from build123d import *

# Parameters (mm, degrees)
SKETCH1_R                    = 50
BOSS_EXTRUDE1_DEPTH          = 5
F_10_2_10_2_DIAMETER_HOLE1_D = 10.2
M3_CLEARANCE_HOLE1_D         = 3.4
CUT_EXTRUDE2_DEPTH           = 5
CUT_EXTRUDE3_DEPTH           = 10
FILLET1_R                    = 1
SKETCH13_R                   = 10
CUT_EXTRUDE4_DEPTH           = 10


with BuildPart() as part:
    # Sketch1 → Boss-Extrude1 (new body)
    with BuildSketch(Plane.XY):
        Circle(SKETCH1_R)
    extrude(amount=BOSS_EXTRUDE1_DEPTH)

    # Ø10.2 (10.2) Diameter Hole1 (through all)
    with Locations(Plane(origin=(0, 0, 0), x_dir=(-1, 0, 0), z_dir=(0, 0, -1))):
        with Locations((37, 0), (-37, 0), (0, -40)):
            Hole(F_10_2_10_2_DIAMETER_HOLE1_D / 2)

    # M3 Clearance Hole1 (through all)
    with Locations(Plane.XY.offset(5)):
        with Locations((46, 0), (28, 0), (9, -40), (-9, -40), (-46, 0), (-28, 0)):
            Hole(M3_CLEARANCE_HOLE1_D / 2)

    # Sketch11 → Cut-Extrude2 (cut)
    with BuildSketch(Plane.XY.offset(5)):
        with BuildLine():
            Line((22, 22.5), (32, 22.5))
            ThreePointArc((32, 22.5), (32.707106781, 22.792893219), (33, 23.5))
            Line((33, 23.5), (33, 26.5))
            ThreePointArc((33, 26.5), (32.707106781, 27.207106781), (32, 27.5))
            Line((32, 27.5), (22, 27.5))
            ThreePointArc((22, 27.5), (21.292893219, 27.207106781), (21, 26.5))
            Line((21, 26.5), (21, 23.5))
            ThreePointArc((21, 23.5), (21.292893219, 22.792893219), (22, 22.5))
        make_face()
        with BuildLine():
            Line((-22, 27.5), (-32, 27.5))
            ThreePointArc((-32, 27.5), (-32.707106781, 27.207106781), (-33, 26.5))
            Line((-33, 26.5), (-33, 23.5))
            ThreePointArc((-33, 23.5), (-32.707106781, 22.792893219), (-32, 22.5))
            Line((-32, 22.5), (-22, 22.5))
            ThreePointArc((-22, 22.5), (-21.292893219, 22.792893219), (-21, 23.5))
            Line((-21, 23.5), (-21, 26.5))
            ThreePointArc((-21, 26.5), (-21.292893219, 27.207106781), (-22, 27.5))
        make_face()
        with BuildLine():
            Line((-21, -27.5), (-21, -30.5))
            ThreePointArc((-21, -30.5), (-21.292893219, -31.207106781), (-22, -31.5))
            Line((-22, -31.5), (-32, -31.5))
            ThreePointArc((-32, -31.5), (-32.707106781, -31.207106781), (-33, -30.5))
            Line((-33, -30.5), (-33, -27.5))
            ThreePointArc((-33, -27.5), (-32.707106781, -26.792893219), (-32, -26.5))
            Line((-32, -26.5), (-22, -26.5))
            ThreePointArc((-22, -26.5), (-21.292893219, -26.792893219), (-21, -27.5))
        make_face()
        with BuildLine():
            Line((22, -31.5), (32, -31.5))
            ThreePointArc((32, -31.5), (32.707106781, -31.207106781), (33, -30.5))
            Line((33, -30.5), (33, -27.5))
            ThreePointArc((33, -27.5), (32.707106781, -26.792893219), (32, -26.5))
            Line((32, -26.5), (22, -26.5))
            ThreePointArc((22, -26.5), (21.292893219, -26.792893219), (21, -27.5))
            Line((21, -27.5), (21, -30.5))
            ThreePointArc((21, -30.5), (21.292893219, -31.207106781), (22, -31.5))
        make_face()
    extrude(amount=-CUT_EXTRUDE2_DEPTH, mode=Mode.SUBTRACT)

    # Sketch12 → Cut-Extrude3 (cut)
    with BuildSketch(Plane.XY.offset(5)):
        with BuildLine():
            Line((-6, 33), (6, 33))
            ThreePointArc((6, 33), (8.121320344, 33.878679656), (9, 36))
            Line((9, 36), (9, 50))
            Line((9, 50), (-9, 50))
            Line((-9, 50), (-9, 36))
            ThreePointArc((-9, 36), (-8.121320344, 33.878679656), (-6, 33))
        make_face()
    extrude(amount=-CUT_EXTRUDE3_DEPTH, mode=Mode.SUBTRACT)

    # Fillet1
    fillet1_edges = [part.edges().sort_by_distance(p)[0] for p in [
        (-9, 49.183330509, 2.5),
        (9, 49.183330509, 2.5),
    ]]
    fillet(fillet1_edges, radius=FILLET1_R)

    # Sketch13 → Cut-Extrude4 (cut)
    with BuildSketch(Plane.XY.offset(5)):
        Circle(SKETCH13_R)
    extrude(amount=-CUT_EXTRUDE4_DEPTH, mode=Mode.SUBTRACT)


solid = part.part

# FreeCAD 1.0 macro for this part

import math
import FreeCAD as App
import Part
import Sketcher
Q = App.Units.Quantity


def edges_at(feature, points):
    """Names of the edges that pass closest to the given points."""
    edges = feature.Shape.Edges
    near = lambda p: min(range(len(edges)), key=lambda i: edges[i].distToShape(Part.Vertex(*p))[0])
    return sorted({f"Edge{near(p) + 1}" for p in points})

doc = App.newDocument("Part")
body = doc.addObject("PartDesign::Body", "Body")

# Sketch on XY plane
sketch1 = body.newObject("Sketcher::SketchObject", "Sketch")
sketch1.AttachmentSupport = (doc.getObject("XY_Plane"), [""])
sketch1.MapMode = "FlatFace"
sketch1.addGeometry(Part.Circle(App.Vector(0, 0, 0), App.Vector(0, 0, 1), 50), False)
sketch1.addConstraint([
    Sketcher.Constraint("Coincident", 0, 3, -1, 1),
    Sketcher.Constraint("Diameter", 0, Q("100 mm")),
])
pad1 = body.newObject("PartDesign::Pad", "Pad")
pad1.Profile = sketch1
pad1.Length = 5

# Sketch on XY plane
sketch2 = body.newObject("Sketcher::SketchObject", "Sketch001")
sketch2.AttachmentSupport = (doc.getObject("XY_Plane"), [""])
sketch2.MapMode = "FlatFace"
sketch2.addGeometry([
    Part.Circle(App.Vector(-37, 0, 0), App.Vector(0, 0, 1), 5.1),
    Part.Circle(App.Vector(37, 0, 0), App.Vector(0, 0, 1), 5.1),
    Part.Circle(App.Vector(0, -40, 0), App.Vector(0, 0, 1), 5.1),
], False)
sketch2.addConstraint([
    Sketcher.Constraint("Equal", 0, 1),
    Sketcher.Constraint("Equal", 1, 2),
    Sketcher.Constraint("Symmetric", 0, 3, 1, 3, -1, 1),
    Sketcher.Constraint("PointOnObject", 0, 3, -1),
    Sketcher.Constraint("PointOnObject", 2, 3, -2),
    Sketcher.Constraint("Diameter", 0, Q("10.2 mm")),
    Sketcher.Constraint("DistanceX", 0, 3, -1, 1, Q("37 mm")),
    Sketcher.Constraint("DistanceY", 2, 3, -1, 1, Q("40 mm")),
])
doc.recompute()
hole = body.newObject("PartDesign::Hole", "Hole")
hole.Profile = sketch2
hole.ThreadType = "None"
hole.Diameter = 10.2
hole.DepthType = "ThroughAll"
hole.Reversed = True

# Sketch on XY plane
sketch3 = body.newObject("Sketcher::SketchObject", "Sketch002")
sketch3.AttachmentSupport = (doc.getObject("XY_Plane"), [""])
sketch3.MapMode = "FlatFace"
sketch3.AttachmentOffset = App.Placement(App.Vector(0, 0, 5), App.Rotation())
sketch3.addGeometry([
    Part.Circle(App.Vector(46, 0, 0), App.Vector(0, 0, 1), 1.7),  # 0
    Part.Circle(App.Vector(28, 0, 0), App.Vector(0, 0, 1), 1.7),  # 1
    Part.Circle(App.Vector(9, -40, 0), App.Vector(0, 0, 1), 1.7),  # 2
    Part.Circle(App.Vector(-9, -40, 0), App.Vector(0, 0, 1), 1.7),  # 3
    Part.Circle(App.Vector(-46, 0, 0), App.Vector(0, 0, 1), 1.7),  # 4
    Part.Circle(App.Vector(-28, 0, 0), App.Vector(0, 0, 1), 1.7),  # 5
], False)
sketch3.addConstraint([
    Sketcher.Constraint("Equal", 0, 1),
    Sketcher.Constraint("Equal", 1, 2),
    Sketcher.Constraint("Equal", 2, 3),
    Sketcher.Constraint("Equal", 3, 4),
    Sketcher.Constraint("Equal", 4, 5),
    Sketcher.Constraint("Symmetric", 0, 3, 4, 3, -1, 1),
    Sketcher.Constraint("Symmetric", 1, 3, 5, 3, -1, 1),
    Sketcher.Constraint("Symmetric", 2, 3, 3, 3, -2),
    Sketcher.Constraint("PointOnObject", 0, 3, -1),
    Sketcher.Constraint("PointOnObject", 1, 3, -1),
    Sketcher.Constraint("Diameter", 0, Q("3.4 mm")),
    Sketcher.Constraint("DistanceX", -1, 1, 0, 3, Q("46 mm")),
    Sketcher.Constraint("DistanceX", -1, 1, 1, 3, Q("28 mm")),
    Sketcher.Constraint("DistanceX", -1, 1, 2, 3, Q("9 mm")),
    Sketcher.Constraint("DistanceY", 2, 3, -1, 1, Q("40 mm")),
])
doc.recompute()
hole2 = body.newObject("PartDesign::Hole", "Hole001")
hole2.Profile = sketch3
hole2.ThreadType = "None"
hole2.Diameter = 3.4
hole2.DepthType = "ThroughAll"

# Sketch on XY plane
sketch4 = body.newObject("Sketcher::SketchObject", "Sketch003")
sketch4.AttachmentSupport = (doc.getObject("XY_Plane"), [""])
sketch4.MapMode = "FlatFace"
sketch4.AttachmentOffset = App.Placement(App.Vector(0, 0, 5), App.Rotation())
sketch4.addGeometry([
    Part.LineSegment(App.Vector(22, 22.5, 0), App.Vector(32, 22.5, 0)),  # 0
    Part.ArcOfCircle(Part.Circle(App.Vector(32, 23.5, 0), App.Vector(0, 0, 1), 1), math.radians(-90), math.radians(0)),  # 1
    Part.LineSegment(App.Vector(33, 23.5, 0), App.Vector(33, 26.5, 0)),  # 2
    Part.ArcOfCircle(Part.Circle(App.Vector(32, 26.5, 0), App.Vector(0, 0, 1), 1), math.radians(0), math.radians(90)),  # 3
    Part.LineSegment(App.Vector(32, 27.5, 0), App.Vector(22, 27.5, 0)),  # 4
    Part.ArcOfCircle(Part.Circle(App.Vector(22, 26.5, 0), App.Vector(0, 0, 1), 1), math.radians(90), math.radians(180)),  # 5
    Part.LineSegment(App.Vector(21, 26.5, 0), App.Vector(21, 23.5, 0)),  # 6
    Part.ArcOfCircle(Part.Circle(App.Vector(22, 23.5, 0), App.Vector(0, 0, 1), 1), math.radians(-180), math.radians(-90)),  # 7
    Part.LineSegment(App.Vector(-22, 27.5, 0), App.Vector(-32, 27.5, 0)),  # 8
    Part.ArcOfCircle(Part.Circle(App.Vector(-32, 26.5, 0), App.Vector(0, 0, 1), 1), math.radians(90), math.radians(180)),  # 9
    Part.LineSegment(App.Vector(-33, 26.5, 0), App.Vector(-33, 23.5, 0)),  # 10
    Part.ArcOfCircle(Part.Circle(App.Vector(-32, 23.5, 0), App.Vector(0, 0, 1), 1), math.radians(-180), math.radians(-90)),  # 11
    Part.LineSegment(App.Vector(-32, 22.5, 0), App.Vector(-22, 22.5, 0)),  # 12
    Part.ArcOfCircle(Part.Circle(App.Vector(-22, 23.5, 0), App.Vector(0, 0, 1), 1), math.radians(-90), math.radians(0)),  # 13
    Part.LineSegment(App.Vector(-21, 23.5, 0), App.Vector(-21, 26.5, 0)),  # 14
    Part.ArcOfCircle(Part.Circle(App.Vector(-22, 26.5, 0), App.Vector(0, 0, 1), 1), math.radians(0), math.radians(90)),  # 15
    Part.LineSegment(App.Vector(-21, -30.5, 0), App.Vector(-21, -27.5, 0)),  # 16
    Part.ArcOfCircle(Part.Circle(App.Vector(-22, -27.5, 0), App.Vector(0, 0, 1), 1), math.radians(0), math.radians(90)),  # 17
    Part.LineSegment(App.Vector(-22, -26.5, 0), App.Vector(-32, -26.5, 0)),  # 18
    Part.ArcOfCircle(Part.Circle(App.Vector(-32, -27.5, 0), App.Vector(0, 0, 1), 1), math.radians(90), math.radians(180)),  # 19
    Part.LineSegment(App.Vector(-33, -27.5, 0), App.Vector(-33, -30.5, 0)),  # 20
    Part.ArcOfCircle(Part.Circle(App.Vector(-32, -30.5, 0), App.Vector(0, 0, 1), 1), math.radians(-180), math.radians(-90)),  # 21
    Part.LineSegment(App.Vector(-32, -31.5, 0), App.Vector(-22, -31.5, 0)),  # 22
    Part.ArcOfCircle(Part.Circle(App.Vector(-22, -30.5, 0), App.Vector(0, 0, 1), 1), math.radians(-90), math.radians(0)),  # 23
    Part.LineSegment(App.Vector(22, -31.5, 0), App.Vector(32, -31.5, 0)),  # 24
    Part.ArcOfCircle(Part.Circle(App.Vector(32, -30.5, 0), App.Vector(0, 0, 1), 1), math.radians(-90), math.radians(0)),  # 25
    Part.LineSegment(App.Vector(33, -30.5, 0), App.Vector(33, -27.5, 0)),  # 26
    Part.ArcOfCircle(Part.Circle(App.Vector(32, -27.5, 0), App.Vector(0, 0, 1), 1), math.radians(0), math.radians(90)),  # 27
    Part.LineSegment(App.Vector(32, -26.5, 0), App.Vector(22, -26.5, 0)),  # 28
    Part.ArcOfCircle(Part.Circle(App.Vector(22, -27.5, 0), App.Vector(0, 0, 1), 1), math.radians(90), math.radians(180)),  # 29
    Part.LineSegment(App.Vector(21, -27.5, 0), App.Vector(21, -30.5, 0)),  # 30
    Part.ArcOfCircle(Part.Circle(App.Vector(22, -30.5, 0), App.Vector(0, 0, 1), 1), math.radians(-180), math.radians(-90)),  # 31
], False)
sketch4.addConstraint([
    Sketcher.Constraint("Tangent", 0, 2, 1, 1),
    Sketcher.Constraint("Tangent", 1, 2, 2, 1),
    Sketcher.Constraint("Tangent", 2, 2, 3, 1),
    Sketcher.Constraint("Tangent", 3, 2, 4, 1),
    Sketcher.Constraint("Tangent", 4, 2, 5, 1),
    Sketcher.Constraint("Tangent", 5, 2, 6, 1),
    Sketcher.Constraint("Tangent", 6, 2, 7, 1),
    Sketcher.Constraint("Tangent", 7, 2, 0, 1),
    Sketcher.Constraint("Tangent", 8, 2, 9, 1),
    Sketcher.Constraint("Tangent", 9, 2, 10, 1),
    Sketcher.Constraint("Tangent", 10, 2, 11, 1),
    Sketcher.Constraint("Tangent", 11, 2, 12, 1),
    Sketcher.Constraint("Tangent", 12, 2, 13, 1),
    Sketcher.Constraint("Tangent", 13, 2, 14, 1),
    Sketcher.Constraint("Tangent", 14, 2, 15, 1),
    Sketcher.Constraint("Tangent", 15, 2, 8, 1),
    Sketcher.Constraint("Tangent", 16, 2, 17, 1),
    Sketcher.Constraint("Tangent", 17, 2, 18, 1),
    Sketcher.Constraint("Tangent", 18, 2, 19, 1),
    Sketcher.Constraint("Tangent", 19, 2, 20, 1),
    Sketcher.Constraint("Tangent", 20, 2, 21, 1),
    Sketcher.Constraint("Tangent", 21, 2, 22, 1),
    Sketcher.Constraint("Tangent", 22, 2, 23, 1),
    Sketcher.Constraint("Tangent", 23, 2, 16, 1),
    Sketcher.Constraint("Tangent", 24, 2, 25, 1),
    Sketcher.Constraint("Tangent", 25, 2, 26, 1),
    Sketcher.Constraint("Tangent", 26, 2, 27, 1),
    Sketcher.Constraint("Tangent", 27, 2, 28, 1),
    Sketcher.Constraint("Tangent", 28, 2, 29, 1),
    Sketcher.Constraint("Tangent", 29, 2, 30, 1),
    Sketcher.Constraint("Tangent", 30, 2, 31, 1),
    Sketcher.Constraint("Tangent", 31, 2, 24, 1),
    Sketcher.Constraint("Horizontal", 0),
    Sketcher.Constraint("Vertical", 2),
    Sketcher.Constraint("Horizontal", 4),
    Sketcher.Constraint("Vertical", 6),
    Sketcher.Constraint("Horizontal", 8),
    Sketcher.Constraint("Vertical", 10),
    Sketcher.Constraint("Horizontal", 12),
    Sketcher.Constraint("Vertical", 14),
    Sketcher.Constraint("Vertical", 16),
    Sketcher.Constraint("Horizontal", 18),
    Sketcher.Constraint("Vertical", 20),
    Sketcher.Constraint("Horizontal", 22),
    Sketcher.Constraint("Horizontal", 24),
    Sketcher.Constraint("Vertical", 26),
    Sketcher.Constraint("Horizontal", 28),
    Sketcher.Constraint("Vertical", 30),
    Sketcher.Constraint("Equal", 1, 3),
    Sketcher.Constraint("Equal", 3, 5),
    Sketcher.Constraint("Equal", 5, 7),
    Sketcher.Constraint("Equal", 7, 9),
    Sketcher.Constraint("Equal", 9, 11),
    Sketcher.Constraint("Equal", 11, 13),
    Sketcher.Constraint("Equal", 13, 15),
    Sketcher.Constraint("Equal", 15, 17),
    Sketcher.Constraint("Equal", 17, 19),
    Sketcher.Constraint("Equal", 19, 21),
    Sketcher.Constraint("Equal", 21, 23),
    Sketcher.Constraint("Equal", 23, 25),
    Sketcher.Constraint("Equal", 25, 27),
    Sketcher.Constraint("Equal", 27, 29),
    Sketcher.Constraint("Equal", 29, 31),
    Sketcher.Constraint("Symmetric", 3, 3, 9, 3, -2),
    Sketcher.Constraint("Symmetric", 7, 3, 13, 3, -2),
    Sketcher.Constraint("Symmetric", 21, 3, 25, 3, -2),
    Sketcher.Constraint("Symmetric", 17, 3, 29, 3, -2),
    Sketcher.Constraint("Vertical", 15, 3, 17, 3),
    Sketcher.Constraint("Vertical", 11, 3, 19, 3),
    Sketcher.Constraint("Equal", 14, 16),
    Sketcher.Constraint("Radius", 1, Q("1 mm")),
    Sketcher.Constraint("DistanceX", 0, 1, 0, 2, Q("10 mm")),
    Sketcher.Constraint("DistanceY", 2, 1, 2, 2, Q("3 mm")),
    Sketcher.Constraint("DistanceX", -1, 1, 1, 3, Q("32 mm")),
    Sketcher.Constraint("DistanceY", 17, 3, 13, 3, Q("51 mm")),
    Sketcher.Constraint("DistanceY", -1, 1, 1, 3, Q("23.5 mm")),
])
pocket1 = body.newObject("PartDesign::Pocket", "Pocket")
pocket1.Profile = sketch4
pocket1.Length = 5

# Sketch on XY plane
sketch5 = body.newObject("Sketcher::SketchObject", "Sketch004")
sketch5.AttachmentSupport = (doc.getObject("XY_Plane"), [""])
sketch5.MapMode = "FlatFace"
sketch5.AttachmentOffset = App.Placement(App.Vector(0, 0, 5), App.Rotation())
sketch5.addGeometry([
    Part.LineSegment(App.Vector(-6, 33, 0), App.Vector(6, 33, 0)),  # 0
    Part.ArcOfCircle(Part.Circle(App.Vector(6, 36, 0), App.Vector(0, 0, 1), 3), math.radians(-90), math.radians(0)),  # 1
    Part.LineSegment(App.Vector(9, 36, 0), App.Vector(9, 50, 0)),  # 2
    Part.LineSegment(App.Vector(9, 50, 0), App.Vector(-9, 50, 0)),  # 3
    Part.LineSegment(App.Vector(-9, 50, 0), App.Vector(-9, 36, 0)),  # 4
    Part.ArcOfCircle(Part.Circle(App.Vector(-6, 36, 0), App.Vector(0, 0, 1), 3), math.radians(180), math.radians(270)),  # 5
], False)
sketch5.addConstraint([
    Sketcher.Constraint("Tangent", 0, 2, 1, 1),
    Sketcher.Constraint("Tangent", 1, 2, 2, 1),
    Sketcher.Constraint("Coincident", 2, 2, 3, 1),
    Sketcher.Constraint("Coincident", 3, 2, 4, 1),
    Sketcher.Constraint("Tangent", 4, 2, 5, 1),
    Sketcher.Constraint("Tangent", 5, 2, 0, 1),
    Sketcher.Constraint("Horizontal", 0),
    Sketcher.Constraint("Vertical", 2),
    Sketcher.Constraint("Horizontal", 3),
    Sketcher.Constraint("Vertical", 4),
    Sketcher.Constraint("Equal", 1, 5),
    Sketcher.Constraint("Radius", 1, Q("3 mm")),
    Sketcher.Constraint("DistanceX", 0, 1, 0, 2, Q("12 mm")),
    Sketcher.Constraint("DistanceY", 2, 1, 2, 2, Q("14 mm")),
    Sketcher.Constraint("DistanceX", -1, 1, 1, 3, Q("6 mm")),
    Sketcher.Constraint("DistanceY", -1, 1, 1, 3, Q("36 mm")),
])
pocket2 = body.newObject("PartDesign::Pocket", "Pocket001")
pocket2.Profile = sketch5
pocket2.Length = 10
doc.recompute()

fillet = body.newObject("PartDesign::Fillet", "Fillet")
fillet.Base = (pocket2, edges_at(pocket2, [(-9, 49.183, 2.5), (9, 49.183, 2.5)]))
fillet.Radius = 1

# Sketch on XY plane
sketch6 = body.newObject("Sketcher::SketchObject", "Sketch005")
sketch6.AttachmentSupport = (doc.getObject("XY_Plane"), [""])
sketch6.MapMode = "FlatFace"
sketch6.AttachmentOffset = App.Placement(App.Vector(0, 0, 5), App.Rotation())
sketch6.addGeometry(Part.Circle(App.Vector(0, 0, 0), App.Vector(0, 0, 1), 10), False)
sketch6.addConstraint([
    Sketcher.Constraint("Coincident", 0, 3, -1, 1),
    Sketcher.Constraint("Diameter", 0, Q("20 mm")),
])
pocket3 = body.newObject("PartDesign::Pocket", "Pocket002")
pocket3.Profile = sketch6
pocket3.Length = 10

doc.recompute()
